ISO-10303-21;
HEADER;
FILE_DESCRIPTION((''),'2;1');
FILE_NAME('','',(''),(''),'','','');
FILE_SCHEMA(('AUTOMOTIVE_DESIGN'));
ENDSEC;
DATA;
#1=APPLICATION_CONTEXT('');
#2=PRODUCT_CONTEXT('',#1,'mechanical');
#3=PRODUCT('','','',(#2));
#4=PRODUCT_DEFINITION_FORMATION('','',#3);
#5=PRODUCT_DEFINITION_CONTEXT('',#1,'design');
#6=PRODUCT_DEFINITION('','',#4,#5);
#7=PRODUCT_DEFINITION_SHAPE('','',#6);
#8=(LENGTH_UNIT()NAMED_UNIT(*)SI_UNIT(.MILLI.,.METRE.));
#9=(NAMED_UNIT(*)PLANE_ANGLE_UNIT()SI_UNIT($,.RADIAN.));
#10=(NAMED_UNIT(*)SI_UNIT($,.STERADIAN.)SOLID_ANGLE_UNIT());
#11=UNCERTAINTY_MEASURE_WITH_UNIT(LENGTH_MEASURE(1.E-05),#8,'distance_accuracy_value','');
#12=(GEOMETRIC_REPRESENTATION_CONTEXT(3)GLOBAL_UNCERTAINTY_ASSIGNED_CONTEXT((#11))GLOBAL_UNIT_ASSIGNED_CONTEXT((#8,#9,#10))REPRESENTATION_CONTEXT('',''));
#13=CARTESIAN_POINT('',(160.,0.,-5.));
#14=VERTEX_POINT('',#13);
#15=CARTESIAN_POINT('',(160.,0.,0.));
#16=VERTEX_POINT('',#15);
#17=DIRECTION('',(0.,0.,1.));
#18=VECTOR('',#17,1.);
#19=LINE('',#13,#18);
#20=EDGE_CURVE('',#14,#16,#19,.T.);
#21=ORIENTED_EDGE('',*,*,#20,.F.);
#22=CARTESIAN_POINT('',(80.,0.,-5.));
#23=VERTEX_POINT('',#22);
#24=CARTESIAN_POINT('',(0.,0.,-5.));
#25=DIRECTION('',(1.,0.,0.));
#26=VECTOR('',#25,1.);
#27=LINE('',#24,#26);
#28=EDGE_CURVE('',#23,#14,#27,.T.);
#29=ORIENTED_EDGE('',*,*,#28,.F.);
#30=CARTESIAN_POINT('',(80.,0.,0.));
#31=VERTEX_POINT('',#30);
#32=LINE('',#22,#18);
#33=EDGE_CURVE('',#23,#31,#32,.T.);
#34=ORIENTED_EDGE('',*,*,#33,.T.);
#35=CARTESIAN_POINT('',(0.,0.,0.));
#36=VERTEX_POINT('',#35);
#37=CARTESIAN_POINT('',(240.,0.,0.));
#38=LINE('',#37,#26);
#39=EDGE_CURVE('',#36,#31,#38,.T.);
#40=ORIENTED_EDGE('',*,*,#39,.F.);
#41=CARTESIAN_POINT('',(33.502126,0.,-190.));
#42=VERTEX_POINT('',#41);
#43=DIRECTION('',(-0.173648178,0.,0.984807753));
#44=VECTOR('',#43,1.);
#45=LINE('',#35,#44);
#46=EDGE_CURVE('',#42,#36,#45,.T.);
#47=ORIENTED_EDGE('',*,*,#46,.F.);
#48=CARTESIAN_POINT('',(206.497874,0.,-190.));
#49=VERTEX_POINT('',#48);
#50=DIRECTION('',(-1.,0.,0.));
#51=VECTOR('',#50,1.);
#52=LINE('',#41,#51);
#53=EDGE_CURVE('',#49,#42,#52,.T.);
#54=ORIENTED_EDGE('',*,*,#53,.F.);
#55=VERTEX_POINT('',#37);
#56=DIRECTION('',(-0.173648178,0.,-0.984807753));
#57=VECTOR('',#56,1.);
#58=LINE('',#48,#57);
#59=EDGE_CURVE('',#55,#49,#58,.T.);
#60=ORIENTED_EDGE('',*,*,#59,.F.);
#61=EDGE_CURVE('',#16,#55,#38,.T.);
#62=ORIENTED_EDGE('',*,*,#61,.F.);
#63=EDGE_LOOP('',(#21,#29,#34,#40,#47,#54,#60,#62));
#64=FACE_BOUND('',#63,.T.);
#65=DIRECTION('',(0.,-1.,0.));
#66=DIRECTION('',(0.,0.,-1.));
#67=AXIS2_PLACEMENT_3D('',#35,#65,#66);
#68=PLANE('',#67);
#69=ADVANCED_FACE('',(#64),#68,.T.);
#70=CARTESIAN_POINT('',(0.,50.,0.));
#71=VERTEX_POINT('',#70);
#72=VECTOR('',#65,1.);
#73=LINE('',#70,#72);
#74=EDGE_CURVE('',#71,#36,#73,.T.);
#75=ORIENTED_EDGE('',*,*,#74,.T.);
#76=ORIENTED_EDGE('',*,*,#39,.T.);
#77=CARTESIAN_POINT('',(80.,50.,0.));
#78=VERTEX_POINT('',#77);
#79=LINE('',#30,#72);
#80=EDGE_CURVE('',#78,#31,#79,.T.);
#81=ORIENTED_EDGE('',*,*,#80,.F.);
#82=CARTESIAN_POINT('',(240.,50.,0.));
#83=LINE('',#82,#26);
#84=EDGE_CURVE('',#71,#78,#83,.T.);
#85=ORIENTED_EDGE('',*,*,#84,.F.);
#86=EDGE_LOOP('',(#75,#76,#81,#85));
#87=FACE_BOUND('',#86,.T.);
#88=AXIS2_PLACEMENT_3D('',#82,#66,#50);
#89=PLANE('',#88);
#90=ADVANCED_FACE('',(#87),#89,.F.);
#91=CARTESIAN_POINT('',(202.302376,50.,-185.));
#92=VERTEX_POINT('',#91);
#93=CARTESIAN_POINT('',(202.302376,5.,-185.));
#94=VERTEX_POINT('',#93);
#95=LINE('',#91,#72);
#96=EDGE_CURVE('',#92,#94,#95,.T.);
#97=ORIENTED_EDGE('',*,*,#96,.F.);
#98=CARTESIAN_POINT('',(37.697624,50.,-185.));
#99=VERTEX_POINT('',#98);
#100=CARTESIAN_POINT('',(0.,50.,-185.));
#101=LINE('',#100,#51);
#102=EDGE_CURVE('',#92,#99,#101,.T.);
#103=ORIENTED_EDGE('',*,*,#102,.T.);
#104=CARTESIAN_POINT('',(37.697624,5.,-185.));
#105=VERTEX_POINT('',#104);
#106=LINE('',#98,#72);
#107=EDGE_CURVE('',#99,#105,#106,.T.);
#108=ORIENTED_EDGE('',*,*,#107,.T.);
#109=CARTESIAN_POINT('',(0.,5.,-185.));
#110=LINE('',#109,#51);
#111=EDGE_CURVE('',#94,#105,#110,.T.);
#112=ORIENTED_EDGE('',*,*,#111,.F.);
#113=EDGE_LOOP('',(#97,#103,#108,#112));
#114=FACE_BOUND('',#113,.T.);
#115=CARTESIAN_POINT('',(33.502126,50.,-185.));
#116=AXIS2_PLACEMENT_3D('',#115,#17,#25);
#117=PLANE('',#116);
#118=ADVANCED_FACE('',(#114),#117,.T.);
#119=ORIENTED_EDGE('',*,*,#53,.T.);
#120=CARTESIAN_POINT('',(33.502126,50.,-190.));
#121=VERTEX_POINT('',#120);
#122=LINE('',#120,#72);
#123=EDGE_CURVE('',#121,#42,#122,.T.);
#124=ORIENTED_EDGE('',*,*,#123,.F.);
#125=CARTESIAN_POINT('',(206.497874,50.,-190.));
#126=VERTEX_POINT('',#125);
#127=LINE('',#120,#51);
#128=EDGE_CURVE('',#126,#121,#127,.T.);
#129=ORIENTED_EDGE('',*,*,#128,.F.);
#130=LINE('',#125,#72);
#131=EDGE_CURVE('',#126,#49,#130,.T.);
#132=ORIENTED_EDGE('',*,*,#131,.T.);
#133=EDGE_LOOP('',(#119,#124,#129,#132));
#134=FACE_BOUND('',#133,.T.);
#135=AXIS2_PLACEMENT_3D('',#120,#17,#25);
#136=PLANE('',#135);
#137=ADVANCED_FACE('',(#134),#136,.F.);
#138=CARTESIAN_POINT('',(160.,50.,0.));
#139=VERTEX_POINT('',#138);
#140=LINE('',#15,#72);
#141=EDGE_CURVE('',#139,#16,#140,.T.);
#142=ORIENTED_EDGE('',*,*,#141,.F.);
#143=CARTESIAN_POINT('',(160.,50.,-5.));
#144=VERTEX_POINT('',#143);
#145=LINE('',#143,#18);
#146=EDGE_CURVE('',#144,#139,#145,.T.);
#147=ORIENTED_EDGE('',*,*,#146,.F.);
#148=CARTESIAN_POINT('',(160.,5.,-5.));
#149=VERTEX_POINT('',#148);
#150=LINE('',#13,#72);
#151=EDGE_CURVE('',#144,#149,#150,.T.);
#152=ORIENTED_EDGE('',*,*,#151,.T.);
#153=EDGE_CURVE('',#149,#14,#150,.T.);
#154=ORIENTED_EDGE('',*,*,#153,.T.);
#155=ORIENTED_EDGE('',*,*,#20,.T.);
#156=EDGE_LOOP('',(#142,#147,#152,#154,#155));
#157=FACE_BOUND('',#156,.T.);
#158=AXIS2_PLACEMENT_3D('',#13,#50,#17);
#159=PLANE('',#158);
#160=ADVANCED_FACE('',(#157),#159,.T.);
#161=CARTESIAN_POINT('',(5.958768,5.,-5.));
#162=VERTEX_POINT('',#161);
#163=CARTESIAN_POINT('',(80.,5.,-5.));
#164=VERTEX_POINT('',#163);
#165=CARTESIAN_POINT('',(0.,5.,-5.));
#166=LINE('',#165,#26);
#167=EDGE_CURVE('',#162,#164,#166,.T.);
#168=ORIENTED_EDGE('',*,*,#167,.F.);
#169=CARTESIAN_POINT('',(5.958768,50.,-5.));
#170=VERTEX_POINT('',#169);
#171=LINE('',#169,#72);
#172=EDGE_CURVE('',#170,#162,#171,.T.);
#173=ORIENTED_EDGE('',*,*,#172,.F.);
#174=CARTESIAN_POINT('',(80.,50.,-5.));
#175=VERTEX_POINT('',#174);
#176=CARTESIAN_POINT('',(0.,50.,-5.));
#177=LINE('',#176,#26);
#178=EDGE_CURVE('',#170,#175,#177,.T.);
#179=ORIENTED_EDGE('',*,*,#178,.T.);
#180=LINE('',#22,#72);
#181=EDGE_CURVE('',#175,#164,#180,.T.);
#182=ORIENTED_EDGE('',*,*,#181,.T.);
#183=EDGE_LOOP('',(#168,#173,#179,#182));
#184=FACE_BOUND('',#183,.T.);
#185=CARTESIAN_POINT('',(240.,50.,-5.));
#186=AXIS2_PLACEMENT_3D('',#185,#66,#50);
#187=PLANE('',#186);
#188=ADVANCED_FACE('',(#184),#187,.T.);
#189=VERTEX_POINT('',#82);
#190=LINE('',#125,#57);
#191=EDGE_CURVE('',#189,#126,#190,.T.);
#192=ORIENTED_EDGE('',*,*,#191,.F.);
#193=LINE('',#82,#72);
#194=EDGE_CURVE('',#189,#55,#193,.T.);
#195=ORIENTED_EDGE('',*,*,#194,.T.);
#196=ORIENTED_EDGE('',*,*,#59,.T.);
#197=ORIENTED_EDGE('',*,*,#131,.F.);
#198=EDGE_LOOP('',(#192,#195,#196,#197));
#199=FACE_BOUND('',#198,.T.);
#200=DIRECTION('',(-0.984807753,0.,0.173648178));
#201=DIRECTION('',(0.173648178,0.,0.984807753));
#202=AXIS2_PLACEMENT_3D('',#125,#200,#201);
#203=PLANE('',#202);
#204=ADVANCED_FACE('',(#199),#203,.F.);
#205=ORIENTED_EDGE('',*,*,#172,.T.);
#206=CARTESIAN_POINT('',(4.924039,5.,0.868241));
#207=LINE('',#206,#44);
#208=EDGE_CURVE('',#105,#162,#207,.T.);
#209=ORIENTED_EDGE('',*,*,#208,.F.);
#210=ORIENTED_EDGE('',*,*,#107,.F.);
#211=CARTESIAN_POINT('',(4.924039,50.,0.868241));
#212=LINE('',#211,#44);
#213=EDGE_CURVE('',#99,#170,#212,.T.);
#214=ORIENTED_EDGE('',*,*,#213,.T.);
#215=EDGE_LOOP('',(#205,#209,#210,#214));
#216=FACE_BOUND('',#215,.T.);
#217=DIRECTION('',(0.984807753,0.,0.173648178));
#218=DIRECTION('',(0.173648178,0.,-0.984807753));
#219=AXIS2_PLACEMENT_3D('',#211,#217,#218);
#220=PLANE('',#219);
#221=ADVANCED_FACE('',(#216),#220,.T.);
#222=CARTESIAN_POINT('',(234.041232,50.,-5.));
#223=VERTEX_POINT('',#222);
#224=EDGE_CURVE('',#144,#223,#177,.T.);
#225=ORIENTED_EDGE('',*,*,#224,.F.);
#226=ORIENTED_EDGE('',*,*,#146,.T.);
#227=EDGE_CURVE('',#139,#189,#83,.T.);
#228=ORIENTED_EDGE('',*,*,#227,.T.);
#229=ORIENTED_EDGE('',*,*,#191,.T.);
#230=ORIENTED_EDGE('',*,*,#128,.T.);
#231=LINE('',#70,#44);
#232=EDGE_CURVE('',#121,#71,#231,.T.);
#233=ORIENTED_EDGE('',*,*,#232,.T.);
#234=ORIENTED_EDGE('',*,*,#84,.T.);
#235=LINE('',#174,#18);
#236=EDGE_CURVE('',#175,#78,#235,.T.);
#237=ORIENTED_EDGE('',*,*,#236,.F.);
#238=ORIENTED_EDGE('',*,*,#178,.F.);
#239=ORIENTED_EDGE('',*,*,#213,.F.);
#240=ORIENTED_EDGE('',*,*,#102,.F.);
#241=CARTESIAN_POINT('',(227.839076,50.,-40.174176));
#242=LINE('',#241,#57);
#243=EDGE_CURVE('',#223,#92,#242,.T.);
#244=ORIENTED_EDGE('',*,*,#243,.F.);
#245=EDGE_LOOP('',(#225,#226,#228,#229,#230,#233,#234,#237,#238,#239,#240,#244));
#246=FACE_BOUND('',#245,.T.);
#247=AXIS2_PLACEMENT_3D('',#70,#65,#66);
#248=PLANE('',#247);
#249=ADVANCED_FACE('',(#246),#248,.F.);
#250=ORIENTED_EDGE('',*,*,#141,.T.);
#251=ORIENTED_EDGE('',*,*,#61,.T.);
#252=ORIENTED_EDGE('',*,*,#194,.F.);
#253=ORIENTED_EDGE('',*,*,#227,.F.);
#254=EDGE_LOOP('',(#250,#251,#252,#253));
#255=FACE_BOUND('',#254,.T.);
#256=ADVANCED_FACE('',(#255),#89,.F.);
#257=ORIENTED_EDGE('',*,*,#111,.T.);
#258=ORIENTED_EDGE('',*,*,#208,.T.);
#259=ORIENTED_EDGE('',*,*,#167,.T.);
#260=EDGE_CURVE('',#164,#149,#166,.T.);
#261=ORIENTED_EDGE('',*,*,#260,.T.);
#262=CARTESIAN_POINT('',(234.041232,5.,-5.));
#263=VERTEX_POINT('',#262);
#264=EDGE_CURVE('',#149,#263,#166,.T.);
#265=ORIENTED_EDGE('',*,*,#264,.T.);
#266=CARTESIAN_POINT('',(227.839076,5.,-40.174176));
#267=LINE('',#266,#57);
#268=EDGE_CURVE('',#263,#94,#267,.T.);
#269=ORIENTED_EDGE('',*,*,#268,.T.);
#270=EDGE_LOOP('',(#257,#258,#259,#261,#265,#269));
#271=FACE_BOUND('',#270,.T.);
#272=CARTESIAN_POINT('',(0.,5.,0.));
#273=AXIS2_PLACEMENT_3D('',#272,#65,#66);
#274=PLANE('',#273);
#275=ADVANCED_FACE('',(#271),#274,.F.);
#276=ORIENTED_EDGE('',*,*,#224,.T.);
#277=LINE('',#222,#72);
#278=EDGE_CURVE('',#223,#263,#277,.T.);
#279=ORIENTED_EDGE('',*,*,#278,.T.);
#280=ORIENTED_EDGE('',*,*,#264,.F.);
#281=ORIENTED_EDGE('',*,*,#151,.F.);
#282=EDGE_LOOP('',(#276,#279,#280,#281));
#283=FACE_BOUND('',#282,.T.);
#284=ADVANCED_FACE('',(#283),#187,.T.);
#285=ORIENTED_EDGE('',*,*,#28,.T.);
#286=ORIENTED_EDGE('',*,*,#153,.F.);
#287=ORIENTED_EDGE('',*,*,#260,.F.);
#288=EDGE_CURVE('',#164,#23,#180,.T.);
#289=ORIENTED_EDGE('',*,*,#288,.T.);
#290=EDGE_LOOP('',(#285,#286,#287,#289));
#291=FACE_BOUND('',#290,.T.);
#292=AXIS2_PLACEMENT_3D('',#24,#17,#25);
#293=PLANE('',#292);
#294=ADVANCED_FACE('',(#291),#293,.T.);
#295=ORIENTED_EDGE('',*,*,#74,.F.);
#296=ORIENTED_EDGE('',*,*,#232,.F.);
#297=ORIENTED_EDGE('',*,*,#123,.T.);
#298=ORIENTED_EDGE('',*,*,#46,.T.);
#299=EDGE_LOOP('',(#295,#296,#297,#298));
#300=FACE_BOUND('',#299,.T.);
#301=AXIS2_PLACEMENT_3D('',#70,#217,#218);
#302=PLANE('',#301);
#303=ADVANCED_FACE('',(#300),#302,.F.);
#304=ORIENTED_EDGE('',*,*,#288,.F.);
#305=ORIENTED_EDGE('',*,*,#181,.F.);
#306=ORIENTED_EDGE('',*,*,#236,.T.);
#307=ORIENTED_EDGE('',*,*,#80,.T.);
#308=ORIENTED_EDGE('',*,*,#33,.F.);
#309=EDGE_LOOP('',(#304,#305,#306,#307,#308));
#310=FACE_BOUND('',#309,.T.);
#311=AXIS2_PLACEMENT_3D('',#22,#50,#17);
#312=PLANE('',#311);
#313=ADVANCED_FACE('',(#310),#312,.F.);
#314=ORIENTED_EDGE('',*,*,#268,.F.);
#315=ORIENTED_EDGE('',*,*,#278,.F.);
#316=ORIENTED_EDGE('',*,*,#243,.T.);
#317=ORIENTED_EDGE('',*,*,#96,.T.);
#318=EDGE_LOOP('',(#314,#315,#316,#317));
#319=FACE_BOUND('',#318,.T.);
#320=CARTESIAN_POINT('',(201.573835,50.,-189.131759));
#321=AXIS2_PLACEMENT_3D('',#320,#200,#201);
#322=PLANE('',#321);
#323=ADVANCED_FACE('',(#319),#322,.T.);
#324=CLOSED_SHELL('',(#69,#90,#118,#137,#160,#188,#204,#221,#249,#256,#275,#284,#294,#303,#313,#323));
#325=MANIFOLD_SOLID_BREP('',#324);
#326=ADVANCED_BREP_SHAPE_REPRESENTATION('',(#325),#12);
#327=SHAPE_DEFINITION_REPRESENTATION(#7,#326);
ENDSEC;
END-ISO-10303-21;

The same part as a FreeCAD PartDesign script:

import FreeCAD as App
import Part
import Sketcher

V = App.Vector
Q = App.Units.Quantity


def faces_at(feature, points):
    """Names of the faces that lie closest to the given points."""
    faces = feature.Shape.Faces
    near = lambda p: min(range(len(faces)), key=lambda i: faces[i].distToShape(Part.Vertex(*p))[0])
    return sorted({f"Face{near(p) + 1}" for p in points})

doc = App.newDocument("Part")
params = doc.addObject("Spreadsheet::Sheet", "Params")
for row, (alias, value) in enumerate([
    ("sketch1_width", "240 mm"),
    ("pad1_length", "50 mm"),
    ("thickness_wall", "5 mm"),
    ("sketch2_width", "80 mm"),
    ("sketch2_height", "50 mm"),
    ("pocket1_length", "5 mm"),
], start=1):
    params.set(f"A{row}", alias)
    params.set(f"B{row}", "=" + value)
    params.setAlias(f"B{row}", alias)

body = doc.addObject("PartDesign::Body", "Body")

# Sketch on XZ plane
sketch1 = body.newObject("Sketcher::SketchObject", "Sketch")
sketch1.AttachmentSupport = (doc.getObject("XZ_Plane"), [""])
sketch1.MapMode = "FlatFace"
sketch1.addGeometry([
    Part.LineSegment(V(34, -190, 0), V(0, 0, 0)),
    Part.LineSegment(V(0, 0, 0), V(240, 0, 0)),
    Part.LineSegment(V(240, 0, 0), V(206, -190, 0)),
    Part.LineSegment(V(206, -190, 0), V(34, -190, 0)),
], False)
sketch1.addConstraint([
    Sketcher.Constraint("Coincident", 0, 2, 1, 1),
    Sketcher.Constraint("Coincident", 1, 2, 2, 1),
    Sketcher.Constraint("Coincident", 2, 2, 3, 1),
    Sketcher.Constraint("Coincident", 3, 2, 0, 1),
    Sketcher.Constraint("Horizontal", 1),
    Sketcher.Constraint("Horizontal", 3),
    Sketcher.Constraint("Coincident", 0, 2, -1, 1),
    Sketcher.Constraint("Equal", 0, 2),
    Sketcher.Constraint("DistanceX", 1, 1, 1, 2, Q("240 mm")),
    Sketcher.Constraint("Angle", 0, Q("100 deg")),
    Sketcher.Constraint("DistanceY", 2, 2, -1, 1, Q("190 mm")),
])
sketch1.setExpression("Constraints[8]", "Params.sketch1_width")
pad1 = body.newObject("PartDesign::Pad", "Pad")
pad1.Profile = sketch1
pad1.setExpression("Length", "Params.pad1_length")
pad1.Reversed = True
doc.recompute()

thickness = body.newObject("PartDesign::Thickness", "Thickness")
thickness.Base = (pad1, faces_at(pad1, [(120, 50, -95)]))
thickness.setExpression("Value", "Params.thickness_wall")
thickness.Reversed = True
thickness.Join = "Intersection"

# Sketch on XY plane
sketch2 = body.newObject("Sketcher::SketchObject", "Sketch001")
sketch2.AttachmentSupport = (doc.getObject("XY_Plane"), [""])
sketch2.MapMode = "FlatFace"
sketch2.addGeometry([
    Part.LineSegment(V(80, 50, 0), V(80, 0, 0)),
    Part.LineSegment(V(80, 0, 0), V(160, 0, 0)),
    Part.LineSegment(V(160, 0, 0), V(160, 50, 0)),
    Part.LineSegment(V(160, 50, 0), V(80, 50, 0)),
], False)
sketch2.addConstraint([
    Sketcher.Constraint("Coincident", 0, 2, 1, 1),
    Sketcher.Constraint("Coincident", 1, 2, 2, 1),
    Sketcher.Constraint("Coincident", 2, 2, 3, 1),
    Sketcher.Constraint("Coincident", 3, 2, 0, 1),
    Sketcher.Constraint("Vertical", 0),
    Sketcher.Constraint("Horizontal", 1),
    Sketcher.Constraint("Vertical", 2),
    Sketcher.Constraint("Horizontal", 3),
    Sketcher.Constraint("PointOnObject", 0, 2, -1),
    Sketcher.Constraint("DistanceX", 1, 1, 1, 2, Q("80 mm")),
    Sketcher.Constraint("DistanceY", 0, 2, 0, 1, Q("50 mm")),
    Sketcher.Constraint("DistanceX", -1, 1, 0, 2, Q("80 mm")),
])
sketch2.setExpression("Constraints[9]", "Params.sketch2_width")
sketch2.setExpression("Constraints[10]", "Params.sketch2_height")
pocket1 = body.newObject("PartDesign::Pocket", "Pocket")
pocket1.Profile = sketch2
pocket1.setExpression("Length", "Params.pocket1_length")

doc.recompute()
